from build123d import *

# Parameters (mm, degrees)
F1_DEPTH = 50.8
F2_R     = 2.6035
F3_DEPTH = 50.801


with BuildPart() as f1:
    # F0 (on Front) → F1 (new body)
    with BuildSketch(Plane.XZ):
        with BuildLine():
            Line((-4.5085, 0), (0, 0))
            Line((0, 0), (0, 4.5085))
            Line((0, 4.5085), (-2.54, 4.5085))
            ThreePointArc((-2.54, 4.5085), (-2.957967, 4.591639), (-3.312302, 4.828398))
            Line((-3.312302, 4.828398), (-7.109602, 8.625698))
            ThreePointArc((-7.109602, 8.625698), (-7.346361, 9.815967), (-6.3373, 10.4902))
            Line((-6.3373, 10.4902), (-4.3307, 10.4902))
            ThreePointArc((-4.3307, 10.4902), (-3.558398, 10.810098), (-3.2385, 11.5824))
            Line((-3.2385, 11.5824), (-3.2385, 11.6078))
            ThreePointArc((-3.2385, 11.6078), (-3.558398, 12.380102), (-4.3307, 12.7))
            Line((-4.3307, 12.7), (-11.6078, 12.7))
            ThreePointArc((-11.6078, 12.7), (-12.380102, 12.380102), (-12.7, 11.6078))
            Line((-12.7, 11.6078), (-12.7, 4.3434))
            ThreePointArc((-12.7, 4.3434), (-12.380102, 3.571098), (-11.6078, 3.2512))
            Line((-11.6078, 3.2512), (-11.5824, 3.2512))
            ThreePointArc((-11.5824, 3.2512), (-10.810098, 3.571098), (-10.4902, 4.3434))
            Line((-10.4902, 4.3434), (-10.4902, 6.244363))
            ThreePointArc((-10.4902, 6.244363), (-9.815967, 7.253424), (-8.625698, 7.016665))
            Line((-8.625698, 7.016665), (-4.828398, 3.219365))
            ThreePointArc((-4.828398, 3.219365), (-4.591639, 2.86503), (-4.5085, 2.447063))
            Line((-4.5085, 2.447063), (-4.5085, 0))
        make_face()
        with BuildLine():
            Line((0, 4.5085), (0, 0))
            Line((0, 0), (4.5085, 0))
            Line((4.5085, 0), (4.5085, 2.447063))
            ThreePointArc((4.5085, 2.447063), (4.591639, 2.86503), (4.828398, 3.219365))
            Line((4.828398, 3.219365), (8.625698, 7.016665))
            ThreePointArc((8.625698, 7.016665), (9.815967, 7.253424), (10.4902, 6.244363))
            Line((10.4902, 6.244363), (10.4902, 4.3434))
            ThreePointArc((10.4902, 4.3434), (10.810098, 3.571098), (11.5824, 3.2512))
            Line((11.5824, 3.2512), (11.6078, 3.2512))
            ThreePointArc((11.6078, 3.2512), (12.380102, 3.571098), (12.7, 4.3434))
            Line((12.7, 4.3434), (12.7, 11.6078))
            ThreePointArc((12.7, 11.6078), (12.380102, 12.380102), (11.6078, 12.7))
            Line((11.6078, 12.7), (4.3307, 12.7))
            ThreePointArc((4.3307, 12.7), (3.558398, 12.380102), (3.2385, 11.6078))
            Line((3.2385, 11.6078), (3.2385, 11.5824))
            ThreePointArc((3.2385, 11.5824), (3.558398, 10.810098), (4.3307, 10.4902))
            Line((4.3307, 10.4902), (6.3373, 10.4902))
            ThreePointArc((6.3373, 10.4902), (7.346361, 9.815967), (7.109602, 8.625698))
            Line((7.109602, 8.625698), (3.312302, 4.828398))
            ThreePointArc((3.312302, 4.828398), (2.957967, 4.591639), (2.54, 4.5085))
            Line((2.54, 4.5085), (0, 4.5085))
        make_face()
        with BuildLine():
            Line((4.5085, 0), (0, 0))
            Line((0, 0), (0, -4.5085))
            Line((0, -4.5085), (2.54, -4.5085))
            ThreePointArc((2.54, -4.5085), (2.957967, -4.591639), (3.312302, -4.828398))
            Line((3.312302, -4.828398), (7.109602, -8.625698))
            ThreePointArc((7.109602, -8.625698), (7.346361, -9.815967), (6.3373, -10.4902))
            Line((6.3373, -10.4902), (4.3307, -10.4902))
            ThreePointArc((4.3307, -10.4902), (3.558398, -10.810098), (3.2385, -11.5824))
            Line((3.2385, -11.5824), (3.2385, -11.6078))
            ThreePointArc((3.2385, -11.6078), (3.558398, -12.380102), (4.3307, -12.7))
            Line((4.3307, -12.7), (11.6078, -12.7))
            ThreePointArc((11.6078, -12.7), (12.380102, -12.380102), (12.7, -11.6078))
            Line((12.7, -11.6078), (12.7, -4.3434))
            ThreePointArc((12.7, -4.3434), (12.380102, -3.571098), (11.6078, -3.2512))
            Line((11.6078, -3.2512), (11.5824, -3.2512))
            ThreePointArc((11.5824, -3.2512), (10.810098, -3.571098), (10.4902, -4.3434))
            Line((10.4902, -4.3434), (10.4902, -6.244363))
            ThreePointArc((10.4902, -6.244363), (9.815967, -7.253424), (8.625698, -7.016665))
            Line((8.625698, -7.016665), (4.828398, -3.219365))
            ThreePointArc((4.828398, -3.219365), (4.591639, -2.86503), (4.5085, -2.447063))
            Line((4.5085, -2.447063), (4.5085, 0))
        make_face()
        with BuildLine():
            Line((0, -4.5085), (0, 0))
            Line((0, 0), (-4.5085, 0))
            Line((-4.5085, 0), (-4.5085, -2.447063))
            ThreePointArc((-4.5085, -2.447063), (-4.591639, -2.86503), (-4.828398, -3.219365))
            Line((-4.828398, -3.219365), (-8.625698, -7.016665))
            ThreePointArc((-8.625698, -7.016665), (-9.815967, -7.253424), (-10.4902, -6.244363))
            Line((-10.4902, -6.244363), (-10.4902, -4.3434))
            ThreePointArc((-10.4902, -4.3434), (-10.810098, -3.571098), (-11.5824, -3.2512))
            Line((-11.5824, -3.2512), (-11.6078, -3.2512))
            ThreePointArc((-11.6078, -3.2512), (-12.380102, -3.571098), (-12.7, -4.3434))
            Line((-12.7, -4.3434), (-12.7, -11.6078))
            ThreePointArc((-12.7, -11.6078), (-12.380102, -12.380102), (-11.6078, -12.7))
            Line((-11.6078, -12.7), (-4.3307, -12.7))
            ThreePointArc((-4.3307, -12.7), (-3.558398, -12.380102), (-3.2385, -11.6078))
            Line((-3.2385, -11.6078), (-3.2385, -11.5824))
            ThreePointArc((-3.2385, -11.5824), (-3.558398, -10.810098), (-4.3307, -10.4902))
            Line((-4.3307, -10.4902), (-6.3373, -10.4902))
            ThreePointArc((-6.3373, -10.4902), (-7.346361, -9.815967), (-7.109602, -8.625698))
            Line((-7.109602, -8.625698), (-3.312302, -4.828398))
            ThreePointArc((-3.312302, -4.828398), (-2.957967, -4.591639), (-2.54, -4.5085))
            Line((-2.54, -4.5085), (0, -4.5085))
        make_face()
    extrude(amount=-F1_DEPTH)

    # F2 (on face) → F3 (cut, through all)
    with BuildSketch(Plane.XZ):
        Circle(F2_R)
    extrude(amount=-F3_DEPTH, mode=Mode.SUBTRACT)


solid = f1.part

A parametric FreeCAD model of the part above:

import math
import FreeCAD as App
import Part
import Sketcher
Q = App.Units.Quantity

doc = App.newDocument("Part")
body = doc.addObject("PartDesign::Body", "Body")

# Sketch on XZ plane
sketch1 = doc.addObject("Sketcher::SketchObject", "Sketch")
body.addObject(sketch1)
sketch1.AttachmentSupport = (doc.XZ_Plane, [""])
sketch1.MapMode = "FlatFace"
sketch1.addGeometry([
    Part.ArcOfCircle(Part.Circle(App.Vector(2.54, -5.601, 0), App.Vector(0, 0, 1), 1.092), math.radians(45), math.radians(90)),  # 0
    Part.LineSegment(App.Vector(3.312, -4.828, 0), App.Vector(7.11, -8.626, 0)),  # 1
    Part.ArcOfCircle(Part.Circle(App.Vector(6.337, -9.398, 0), App.Vector(0, 0, 1), 1.092), math.radians(-90), math.radians(45)),  # 2
    Part.LineSegment(App.Vector(6.337, -10.49, 0), App.Vector(4.331, -10.49, 0)),  # 3
    Part.ArcOfCircle(Part.Circle(App.Vector(4.331, -11.582, 0), App.Vector(0, 0, 1), 1.092), math.radians(90), math.radians(180)),  # 4
    Part.LineSegment(App.Vector(3.239, -11.582, 0), App.Vector(3.239, -11.608, 0)),  # 5
    Part.ArcOfCircle(Part.Circle(App.Vector(4.331, -11.608, 0), App.Vector(0, 0, 1), 1.092), math.radians(-180), math.radians(-90)),  # 6
    Part.LineSegment(App.Vector(4.331, -12.7, 0), App.Vector(11.608, -12.7, 0)),  # 7
    Part.ArcOfCircle(Part.Circle(App.Vector(11.608, -11.608, 0), App.Vector(0, 0, 1), 1.092), math.radians(-90), math.radians(0)),  # 8
    Part.LineSegment(App.Vector(12.7, -11.608, 0), App.Vector(12.7, -4.343, 0)),  # 9
    Part.ArcOfCircle(Part.Circle(App.Vector(11.608, -4.343, 0), App.Vector(0, 0, 1), 1.092), math.radians(0), math.radians(90)),  # 10
    Part.LineSegment(App.Vector(11.608, -3.251, 0), App.Vector(11.582, -3.251, 0)),  # 11
    Part.ArcOfCircle(Part.Circle(App.Vector(11.582, -4.343, 0), App.Vector(0, 0, 1), 1.092), math.radians(90), math.radians(180)),  # 12
    Part.LineSegment(App.Vector(10.49, -4.343, 0), App.Vector(10.49, -6.244, 0)),  # 13
    Part.ArcOfCircle(Part.Circle(App.Vector(9.398, -6.244, 0), App.Vector(0, 0, 1), 1.092), math.radians(-135), math.radians(0)),  # 14
    Part.LineSegment(App.Vector(8.626, -7.017, 0), App.Vector(4.828, -3.219, 0)),  # 15
    Part.ArcOfCircle(Part.Circle(App.Vector(5.601, -2.447, 0), App.Vector(0, 0, 1), 1.092), math.radians(-180), math.radians(-135)),  # 16
    Part.LineSegment(App.Vector(4.508, -2.447, 0), App.Vector(4.508, 2.447, 0)),  # 17
    Part.ArcOfCircle(Part.Circle(App.Vector(5.601, 2.447, 0), App.Vector(0, 0, 1), 1.092), math.radians(135), math.radians(180)),  # 18
    Part.LineSegment(App.Vector(4.828, 3.219, 0), App.Vector(8.626, 7.017, 0)),  # 19
    Part.ArcOfCircle(Part.Circle(App.Vector(9.398, 6.244, 0), App.Vector(0, 0, 1), 1.092), math.radians(0), math.radians(135)),  # 20
    Part.LineSegment(App.Vector(10.49, 6.244, 0), App.Vector(10.49, 4.343, 0)),  # 21
    Part.ArcOfCircle(Part.Circle(App.Vector(11.582, 4.343, 0), App.Vector(0, 0, 1), 1.092), math.radians(-180), math.radians(-90)),  # 22
    Part.LineSegment(App.Vector(11.582, 3.251, 0), App.Vector(11.608, 3.251, 0)),  # 23
    Part.ArcOfCircle(Part.Circle(App.Vector(11.608, 4.343, 0), App.Vector(0, 0, 1), 1.092), math.radians(-90), math.radians(0)),  # 24
    Part.LineSegment(App.Vector(12.7, 4.343, 0), App.Vector(12.7, 11.608, 0)),  # 25
    Part.ArcOfCircle(Part.Circle(App.Vector(11.608, 11.608, 0), App.Vector(0, 0, 1), 1.092), math.radians(0), math.radians(90)),  # 26
    Part.LineSegment(App.Vector(11.608, 12.7, 0), App.Vector(4.331, 12.7, 0)),  # 27
    Part.ArcOfCircle(Part.Circle(App.Vector(4.331, 11.608, 0), App.Vector(0, 0, 1), 1.092), math.radians(90), math.radians(180)),  # 28
    Part.LineSegment(App.Vector(3.239, 11.608, 0), App.Vector(3.239, 11.582, 0)),  # 29
    Part.ArcOfCircle(Part.Circle(App.Vector(4.331, 11.582, 0), App.Vector(0, 0, 1), 1.092), math.radians(-180), math.radians(-90)),  # 30
    Part.LineSegment(App.Vector(4.331, 10.49, 0), App.Vector(6.337, 10.49, 0)),  # 31
    Part.ArcOfCircle(Part.Circle(App.Vector(6.337, 9.398, 0), App.Vector(0, 0, 1), 1.092), math.radians(-45), math.radians(90)),  # 32
    Part.LineSegment(App.Vector(7.11, 8.626, 0), App.Vector(3.312, 4.828, 0)),  # 33
    Part.ArcOfCircle(Part.Circle(App.Vector(2.54, 5.601, 0), App.Vector(0, 0, 1), 1.092), math.radians(-90), math.radians(-45)),  # 34
    Part.LineSegment(App.Vector(2.54, 4.508, 0), App.Vector(-2.54, 4.508, 0)),  # 35
    Part.ArcOfCircle(Part.Circle(App.Vector(-2.54, 5.601, 0), App.Vector(0, 0, 1), 1.092), math.radians(-135), math.radians(-90)),  # 36
    Part.LineSegment(App.Vector(-3.312, 4.828, 0), App.Vector(-7.11, 8.626, 0)),  # 37
    Part.ArcOfCircle(Part.Circle(App.Vector(-6.337, 9.398, 0), App.Vector(0, 0, 1), 1.092), math.radians(90), math.radians(225)),  # 38
    Part.LineSegment(App.Vector(-6.337, 10.49, 0), App.Vector(-4.331, 10.49, 0)),  # 39
    Part.ArcOfCircle(Part.Circle(App.Vector(-4.331, 11.582, 0), App.Vector(0, 0, 1), 1.092), math.radians(-90), math.radians(0)),  # 40
    Part.LineSegment(App.Vector(-3.239, 11.582, 0), App.Vector(-3.239, 11.608, 0)),  # 41
    Part.ArcOfCircle(Part.Circle(App.Vector(-4.331, 11.608, 0), App.Vector(0, 0, 1), 1.092), math.radians(0), math.radians(90)),  # 42
    Part.LineSegment(App.Vector(-4.331, 12.7, 0), App.Vector(-11.608, 12.7, 0)),  # 43
    Part.ArcOfCircle(Part.Circle(App.Vector(-11.608, 11.608, 0), App.Vector(0, 0, 1), 1.092), math.radians(90), math.radians(180)),  # 44
    Part.LineSegment(App.Vector(-12.7, 11.608, 0), App.Vector(-12.7, 4.343, 0)),  # 45
    Part.ArcOfCircle(Part.Circle(App.Vector(-11.608, 4.343, 0), App.Vector(0, 0, 1), 1.092), math.radians(-180), math.radians(-90)),  # 46
    Part.LineSegment(App.Vector(-11.608, 3.251, 0), App.Vector(-11.582, 3.251, 0)),  # 47
    Part.ArcOfCircle(Part.Circle(App.Vector(-11.582, 4.343, 0), App.Vector(0, 0, 1), 1.092), math.radians(-90), math.radians(0)),  # 48
    Part.LineSegment(App.Vector(-10.49, 4.343, 0), App.Vector(-10.49, 6.244, 0)),  # 49
    Part.ArcOfCircle(Part.Circle(App.Vector(-9.398, 6.244, 0), App.Vector(0, 0, 1), 1.092), math.radians(45), math.radians(180)),  # 50
    Part.LineSegment(App.Vector(-8.626, 7.017, 0), App.Vector(-4.828, 3.219, 0)),  # 51
    Part.ArcOfCircle(Part.Circle(App.Vector(-5.601, 2.447, 0), App.Vector(0, 0, 1), 1.092), math.radians(0), math.radians(45)),  # 52
    Part.LineSegment(App.Vector(-4.508, 2.447, 0), App.Vector(-4.508, -2.447, 0)),  # 53
    Part.ArcOfCircle(Part.Circle(App.Vector(-5.601, -2.447, 0), App.Vector(0, 0, 1), 1.092), math.radians(-45), math.radians(0)),  # 54
    Part.LineSegment(App.Vector(-4.828, -3.219, 0), App.Vector(-8.626, -7.017, 0)),  # 55
    Part.ArcOfCircle(Part.Circle(App.Vector(-9.398, -6.244, 0), App.Vector(0, 0, 1), 1.092), math.radians(-180), math.radians(-45)),  # 56
    Part.LineSegment(App.Vector(-10.49, -6.244, 0), App.Vector(-10.49, -4.343, 0)),  # 57
    Part.ArcOfCircle(Part.Circle(App.Vector(-11.582, -4.343, 0), App.Vector(0, 0, 1), 1.092), math.radians(0), math.radians(90)),  # 58
    Part.LineSegment(App.Vector(-11.582, -3.251, 0), App.Vector(-11.608, -3.251, 0)),  # 59
    Part.ArcOfCircle(Part.Circle(App.Vector(-11.608, -4.343, 0), App.Vector(0, 0, 1), 1.092), math.radians(90), math.radians(180)),  # 60
    Part.LineSegment(App.Vector(-12.7, -4.343, 0), App.Vector(-12.7, -11.608, 0)),  # 61
    Part.ArcOfCircle(Part.Circle(App.Vector(-11.608, -11.608, 0), App.Vector(0, 0, 1), 1.092), math.radians(-180), math.radians(-90)),  # 62
    Part.LineSegment(App.Vector(-11.608, -12.7, 0), App.Vector(-4.331, -12.7, 0)),  # 63
    Part.ArcOfCircle(Part.Circle(App.Vector(-4.331, -11.608, 0), App.Vector(0, 0, 1), 1.092), math.radians(-90), math.radians(0)),  # 64
    Part.LineSegment(App.Vector(-3.239, -11.608, 0), App.Vector(-3.239, -11.582, 0)),  # 65
    Part.ArcOfCircle(Part.Circle(App.Vector(-4.331, -11.582, 0), App.Vector(0, 0, 1), 1.092), math.radians(0), math.radians(90)),  # 66
    Part.LineSegment(App.Vector(-4.331, -10.49, 0), App.Vector(-6.337, -10.49, 0)),  # 67
    Part.ArcOfCircle(Part.Circle(App.Vector(-6.337, -9.398, 0), App.Vector(0, 0, 1), 1.092), math.radians(135), math.radians(270)),  # 68
    Part.LineSegment(App.Vector(-7.11, -8.626, 0), App.Vector(-3.312, -4.828, 0)),  # 69
    Part.ArcOfCircle(Part.Circle(App.Vector(-2.54, -5.601, 0), App.Vector(0, 0, 1), 1.092), math.radians(90), math.radians(135)),  # 70
    Part.LineSegment(App.Vector(-2.54, -4.508, 0), App.Vector(2.54, -4.508, 0)),  # 71
], False)
sketch1.addConstraint([
    Sketcher.Constraint("Tangent", 0, 1, 1, 1),
    Sketcher.Constraint("Tangent", 1, 2, 2, 2),
    Sketcher.Constraint("Tangent", 2, 1, 3, 1),
    Sketcher.Constraint("Tangent", 3, 2, 4, 1),
    Sketcher.Constraint("Tangent", 4, 2, 5, 1),
    Sketcher.Constraint("Tangent", 5, 2, 6, 1),
    Sketcher.Constraint("Tangent", 6, 2, 7, 1),
    Sketcher.Constraint("Tangent", 7, 2, 8, 1),
    Sketcher.Constraint("Tangent", 8, 2, 9, 1),
    Sketcher.Constraint("Tangent", 9, 2, 10, 1),
    Sketcher.Constraint("Tangent", 10, 2, 11, 1),
    Sketcher.Constraint("Tangent", 11, 2, 12, 1),
    Sketcher.Constraint("Tangent", 12, 2, 13, 1),
    Sketcher.Constraint("Tangent", 13, 2, 14, 2),
    Sketcher.Constraint("Tangent", 14, 1, 15, 1),
    Sketcher.Constraint("Tangent", 15, 2, 16, 2),
    Sketcher.Constraint("Tangent", 16, 1, 17, 1),
    Sketcher.Constraint("Tangent", 17, 2, 18, 2),
    Sketcher.Constraint("Tangent", 18, 1, 19, 1),
    Sketcher.Constraint("Tangent", 19, 2, 20, 2),
    Sketcher.Constraint("Tangent", 20, 1, 21, 1),
    Sketcher.Constraint("Tangent", 21, 2, 22, 1),
    Sketcher.Constraint("Tangent", 22, 2, 23, 1),
    Sketcher.Constraint("Tangent", 23, 2, 24, 1),
    Sketcher.Constraint("Tangent", 24, 2, 25, 1),
    Sketcher.Constraint("Tangent", 25, 2, 26, 1),
    Sketcher.Constraint("Tangent", 26, 2, 27, 1),
    Sketcher.Constraint("Tangent", 27, 2, 28, 1),
    Sketcher.Constraint("Tangent", 28, 2, 29, 1),
    Sketcher.Constraint("Tangent", 29, 2, 30, 1),
    Sketcher.Constraint("Tangent", 30, 2, 31, 1),
    Sketcher.Constraint("Tangent", 31, 2, 32, 2),
    Sketcher.Constraint("Tangent", 32, 1, 33, 1),
    Sketcher.Constraint("Tangent", 33, 2, 34, 2),
    Sketcher.Constraint("Tangent", 34, 1, 35, 1),
    Sketcher.Constraint("Tangent", 35, 2, 36, 2),
    Sketcher.Constraint("Tangent", 36, 1, 37, 1),
    Sketcher.Constraint("Tangent", 37, 2, 38, 2),
    Sketcher.Constraint("Tangent", 38, 1, 39, 1),
    Sketcher.Constraint("Tangent", 39, 2, 40, 1),
    Sketcher.Constraint("Tangent", 40, 2, 41, 1),
    Sketcher.Constraint("Tangent", 41, 2, 42, 1),
    Sketcher.Constraint("Tangent", 42, 2, 43, 1),
    Sketcher.Constraint("Tangent", 43, 2, 44, 1),
    Sketcher.Constraint("Tangent", 44, 2, 45, 1),
    Sketcher.Constraint("Tangent", 45, 2, 46, 1),
    Sketcher.Constraint("Tangent", 46, 2, 47, 1),
    Sketcher.Constraint("Tangent", 47, 2, 48, 1),
    Sketcher.Constraint("Tangent", 48, 2, 49, 1),
    Sketcher.Constraint("Tangent", 49, 2, 50, 2),
    Sketcher.Constraint("Tangent", 50, 1, 51, 1),
    Sketcher.Constraint("Tangent", 51, 2, 52, 2),
    Sketcher.Constraint("Tangent", 52, 1, 53, 1),
    Sketcher.Constraint("Tangent", 53, 2, 54, 2),
    Sketcher.Constraint("Tangent", 54, 1, 55, 1),
    Sketcher.Constraint("Tangent", 55, 2, 56, 2),
    Sketcher.Constraint("Tangent", 56, 1, 57, 1),
    Sketcher.Constraint("Tangent", 57, 2, 58, 1),
    Sketcher.Constraint("Tangent", 58, 2, 59, 1),
    Sketcher.Constraint("Tangent", 59, 2, 60, 1),
    Sketcher.Constraint("Tangent", 60, 2, 61, 1),
    Sketcher.Constraint("Tangent", 61, 2, 62, 1),
    Sketcher.Constraint("Tangent", 62, 2, 63, 1),
    Sketcher.Constraint("Tangent", 63, 2, 64, 1),
    Sketcher.Constraint("Tangent", 64, 2, 65, 1),
    Sketcher.Constraint("Tangent", 65, 2, 66, 1),
    Sketcher.Constraint("Tangent", 66, 2, 67, 1),
    Sketcher.Constraint("Tangent", 67, 2, 68, 2),
    Sketcher.Constraint("Tangent", 68, 1, 69, 1),
    Sketcher.Constraint("Tangent", 69, 2, 70, 2),
    Sketcher.Constraint("Tangent", 70, 1, 71, 1),
    Sketcher.Constraint("Tangent", 71, 2, 0, 2),
    Sketcher.Constraint("Horizontal", 3),
    Sketcher.Constraint("Vertical", 5),
    Sketcher.Constraint("Horizontal", 7),
    Sketcher.Constraint("Vertical", 9),
    Sketcher.Constraint("Horizontal", 11),
    Sketcher.Constraint("Vertical", 13),
    Sketcher.Constraint("Vertical", 17),
    Sketcher.Constraint("Vertical", 21),
    Sketcher.Constraint("Horizontal", 23),
    Sketcher.Constraint("Vertical", 25),
    Sketcher.Constraint("Horizontal", 27),
    Sketcher.Constraint("Vertical", 29),
    Sketcher.Constraint("Horizontal", 31),
    Sketcher.Constraint("Horizontal", 35),
    Sketcher.Constraint("Horizontal", 39),
    Sketcher.Constraint("Vertical", 41),
    Sketcher.Constraint("Horizontal", 43),
    Sketcher.Constraint("Vertical", 45),
    Sketcher.Constraint("Horizontal", 47),
    Sketcher.Constraint("Vertical", 49),
    Sketcher.Constraint("Vertical", 53),
    Sketcher.Constraint("Vertical", 57),
    Sketcher.Constraint("Horizontal", 59),
    Sketcher.Constraint("Vertical", 61),
    Sketcher.Constraint("Horizontal", 63),
    Sketcher.Constraint("Vertical", 65),
    Sketcher.Constraint("Horizontal", 67),
    Sketcher.Constraint("Horizontal", 71),
    Sketcher.Constraint("Equal", 0, 2),
    Sketcher.Constraint("Equal", 2, 4),
    Sketcher.Constraint("Equal", 4, 6),
    Sketcher.Constraint("Equal", 6, 8),
    Sketcher.Constraint("Equal", 8, 10),
    Sketcher.Constraint("Equal", 10, 12),
    Sketcher.Constraint("Equal", 12, 14),
    Sketcher.Constraint("Equal", 14, 16),
    Sketcher.Constraint("Equal", 16, 18),
    Sketcher.Constraint("Equal", 18, 20),
    Sketcher.Constraint("Equal", 20, 22),
    Sketcher.Constraint("Equal", 22, 24),
    Sketcher.Constraint("Equal", 24, 26),
    Sketcher.Constraint("Equal", 26, 28),
    Sketcher.Constraint("Equal", 28, 30),
    Sketcher.Constraint("Equal", 30, 32),
    Sketcher.Constraint("Equal", 32, 34),
    Sketcher.Constraint("Equal", 34, 36),
    Sketcher.Constraint("Equal", 36, 38),
    Sketcher.Constraint("Equal", 38, 40),
    Sketcher.Constraint("Equal", 40, 42),
    Sketcher.Constraint("Equal", 42, 44),
    Sketcher.Constraint("Equal", 44, 46),
    Sketcher.Constraint("Equal", 46, 48),
    Sketcher.Constraint("Equal", 48, 50),
    Sketcher.Constraint("Equal", 50, 52),
    Sketcher.Constraint("Equal", 52, 54),
    Sketcher.Constraint("Equal", 54, 56),
    Sketcher.Constraint("Equal", 56, 58),
    Sketcher.Constraint("Equal", 58, 60),
    Sketcher.Constraint("Equal", 60, 62),
    Sketcher.Constraint("Equal", 62, 64),
    Sketcher.Constraint("Equal", 64, 66),
    Sketcher.Constraint("Equal", 66, 68),
    Sketcher.Constraint("Equal", 68, 70),
    Sketcher.Constraint("Symmetric", 0, 3, 36, 3, -1, 1),
    Sketcher.Constraint("Symmetric", 2, 3, 38, 3, -1, 1),
    Sketcher.Constraint("Symmetric", 6, 3, 42, 3, -1, 1),
    Sketcher.Constraint("Symmetric", 10, 3, 46, 3, -1, 1),
    Sketcher.Constraint("Symmetric", 14, 3, 50, 3, -1, 1),
    Sketcher.Constraint("Symmetric", 16, 3, 52, 3, -1, 1),
    Sketcher.Constraint("Symmetric", 20, 3, 56, 3, -1, 1),
    Sketcher.Constraint("Symmetric", 24, 3, 60, 3, -1, 1),
    Sketcher.Constraint("Symmetric", 28, 3, 64, 3, -1, 1),
    Sketcher.Constraint("Symmetric", 32, 3, 68, 3, -1, 1),
    Sketcher.Constraint("Symmetric", 32, 3, 38, 3, -2),
    Sketcher.Constraint("Symmetric", 28, 3, 42, 3, -2),
    Sketcher.Constraint("Symmetric", 24, 3, 46, 3, -2),
    Sketcher.Constraint("Symmetric", 20, 3, 50, 3, -2),
    Sketcher.Constraint("Parallel", 1, 15),
    Sketcher.Constraint("Perpendicular", 15, 19),
    Sketcher.Constraint("Parallel", 19, 33),
    Sketcher.Constraint("Perpendicular", 51, 55),
    Sketcher.Constraint("Parallel", 55, 69),
    Sketcher.Constraint("Horizontal", 18, 3, 52, 3),
    Sketcher.Constraint("Equal", 59, 5),
    Sketcher.Constraint("Equal", 1, 15),
    Sketcher.Constraint("DistanceX", 35, 2, 35, 1, Q("0.2 in")),
    Sketcher.Constraint("Radius", 0, Q("0.0430001 in")),
    Sketcher.Constraint("DistanceY", 6, 2, -1, 1, Q("0.5 in")),
    Sketcher.Constraint("DistanceX", -1, 1, 8, 2, Q("0.5 in")),
    Sketcher.Constraint("DistanceX", 3, 2, 3, 1, Q("0.079 in")),
    Sketcher.Constraint("DistanceX", 11, 2, 11, 1, Q("0.001 in")),
    Sketcher.Constraint("DistanceY", 9, 1, 9, 2, Q("0.286 in")),
    Sketcher.Constraint("DistanceX", 7, 1, 7, 2, Q("0.2865 in")),
    Sketcher.Constraint("DistanceY", 13, 2, 13, 1, Q("1.900963 mm")),
])
pad1 = doc.addObject("PartDesign::Pad", "Pad")
body.addObject(pad1)
pad1.Profile = sketch1
pad1.Length = Q("2 in")
pad1.Reversed = True

# Sketch on XZ plane
sketch2 = doc.addObject("Sketcher::SketchObject", "Sketch001")
body.addObject(sketch2)
sketch2.AttachmentSupport = (doc.XZ_Plane, [""])
sketch2.MapMode = "FlatFace"
sketch2.addGeometry(Part.Circle(App.Vector(0, 0, 0), App.Vector(0, 0, 1), 2.6), False)
sketch2.addConstraint([
    Sketcher.Constraint("Coincident", 0, 3, -1, 1),
    Sketcher.Constraint("Diameter", 0, Q("0.205 in")),
])
pocket1 = doc.addObject("PartDesign::Pocket", "Pocket")
body.addObject(pocket1)
pocket1.Profile = sketch2
pocket1.Type = "ThroughAll"

doc.recompute()
